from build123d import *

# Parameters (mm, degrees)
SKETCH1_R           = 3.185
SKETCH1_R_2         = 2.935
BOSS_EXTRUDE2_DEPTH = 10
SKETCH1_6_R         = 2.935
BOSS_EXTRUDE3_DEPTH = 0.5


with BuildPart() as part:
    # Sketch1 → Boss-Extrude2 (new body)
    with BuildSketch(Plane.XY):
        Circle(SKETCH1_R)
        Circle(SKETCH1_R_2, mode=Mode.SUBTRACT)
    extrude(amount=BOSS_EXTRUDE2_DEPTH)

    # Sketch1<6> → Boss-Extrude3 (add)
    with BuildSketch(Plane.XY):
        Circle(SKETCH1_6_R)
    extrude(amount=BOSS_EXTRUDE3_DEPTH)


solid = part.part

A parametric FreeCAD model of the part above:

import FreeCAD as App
import Part
import Sketcher

V = App.Vector
Q = App.Units.Quantity

doc = App.newDocument("Part")
body = doc.addObject("PartDesign::Body", "Body")

sketch1 = body.newObject("Sketcher::SketchObject", "Sketch")
sketch1.AttachmentSupport = (doc.getObject("XY_Plane"), [""])
sketch1.MapMode = "FlatFace"
sketch1.addGeometry(Part.Circle(V(0, 0, 0), V(0, 0, 1), 3.185), False)
sketch1.addGeometry(Part.Circle(V(0, 0, 0), V(0, 0, 1), 2.935), False)
sketch1.addConstraint(Sketcher.Constraint("Coincident", 0, 3, -1, 1))
sketch1.addConstraint(Sketcher.Constraint("Coincident", 1, 3, -1, 1))
sketch1.addConstraint(Sketcher.Constraint("Diameter", 0, Q("6.37 mm")))
sketch1.addConstraint(Sketcher.Constraint("Diameter", 1, Q("5.87 mm")))
pad1 = body.newObject("PartDesign::Pad", "Pad")
pad1.Profile = sketch1
pad1.Length = 10

sketch2 = body.newObject("Sketcher::SketchObject", "Sketch001")
sketch2.AttachmentSupport = (doc.getObject("XY_Plane"), [""])
sketch2.MapMode = "FlatFace"
sketch2.addGeometry(Part.Circle(V(0, 0, 0), V(0, 0, 1), 2.935), False)
sketch2.addConstraint(Sketcher.Constraint("Coincident", 0, 3, -1, 1))
sketch2.addConstraint(Sketcher.Constraint("Diameter", 0, Q("5.87 mm")))
pad2 = body.newObject("PartDesign::Pad", "Pad001")
pad2.Profile = sketch2
pad2.Length = 0.5

doc.recompute()
